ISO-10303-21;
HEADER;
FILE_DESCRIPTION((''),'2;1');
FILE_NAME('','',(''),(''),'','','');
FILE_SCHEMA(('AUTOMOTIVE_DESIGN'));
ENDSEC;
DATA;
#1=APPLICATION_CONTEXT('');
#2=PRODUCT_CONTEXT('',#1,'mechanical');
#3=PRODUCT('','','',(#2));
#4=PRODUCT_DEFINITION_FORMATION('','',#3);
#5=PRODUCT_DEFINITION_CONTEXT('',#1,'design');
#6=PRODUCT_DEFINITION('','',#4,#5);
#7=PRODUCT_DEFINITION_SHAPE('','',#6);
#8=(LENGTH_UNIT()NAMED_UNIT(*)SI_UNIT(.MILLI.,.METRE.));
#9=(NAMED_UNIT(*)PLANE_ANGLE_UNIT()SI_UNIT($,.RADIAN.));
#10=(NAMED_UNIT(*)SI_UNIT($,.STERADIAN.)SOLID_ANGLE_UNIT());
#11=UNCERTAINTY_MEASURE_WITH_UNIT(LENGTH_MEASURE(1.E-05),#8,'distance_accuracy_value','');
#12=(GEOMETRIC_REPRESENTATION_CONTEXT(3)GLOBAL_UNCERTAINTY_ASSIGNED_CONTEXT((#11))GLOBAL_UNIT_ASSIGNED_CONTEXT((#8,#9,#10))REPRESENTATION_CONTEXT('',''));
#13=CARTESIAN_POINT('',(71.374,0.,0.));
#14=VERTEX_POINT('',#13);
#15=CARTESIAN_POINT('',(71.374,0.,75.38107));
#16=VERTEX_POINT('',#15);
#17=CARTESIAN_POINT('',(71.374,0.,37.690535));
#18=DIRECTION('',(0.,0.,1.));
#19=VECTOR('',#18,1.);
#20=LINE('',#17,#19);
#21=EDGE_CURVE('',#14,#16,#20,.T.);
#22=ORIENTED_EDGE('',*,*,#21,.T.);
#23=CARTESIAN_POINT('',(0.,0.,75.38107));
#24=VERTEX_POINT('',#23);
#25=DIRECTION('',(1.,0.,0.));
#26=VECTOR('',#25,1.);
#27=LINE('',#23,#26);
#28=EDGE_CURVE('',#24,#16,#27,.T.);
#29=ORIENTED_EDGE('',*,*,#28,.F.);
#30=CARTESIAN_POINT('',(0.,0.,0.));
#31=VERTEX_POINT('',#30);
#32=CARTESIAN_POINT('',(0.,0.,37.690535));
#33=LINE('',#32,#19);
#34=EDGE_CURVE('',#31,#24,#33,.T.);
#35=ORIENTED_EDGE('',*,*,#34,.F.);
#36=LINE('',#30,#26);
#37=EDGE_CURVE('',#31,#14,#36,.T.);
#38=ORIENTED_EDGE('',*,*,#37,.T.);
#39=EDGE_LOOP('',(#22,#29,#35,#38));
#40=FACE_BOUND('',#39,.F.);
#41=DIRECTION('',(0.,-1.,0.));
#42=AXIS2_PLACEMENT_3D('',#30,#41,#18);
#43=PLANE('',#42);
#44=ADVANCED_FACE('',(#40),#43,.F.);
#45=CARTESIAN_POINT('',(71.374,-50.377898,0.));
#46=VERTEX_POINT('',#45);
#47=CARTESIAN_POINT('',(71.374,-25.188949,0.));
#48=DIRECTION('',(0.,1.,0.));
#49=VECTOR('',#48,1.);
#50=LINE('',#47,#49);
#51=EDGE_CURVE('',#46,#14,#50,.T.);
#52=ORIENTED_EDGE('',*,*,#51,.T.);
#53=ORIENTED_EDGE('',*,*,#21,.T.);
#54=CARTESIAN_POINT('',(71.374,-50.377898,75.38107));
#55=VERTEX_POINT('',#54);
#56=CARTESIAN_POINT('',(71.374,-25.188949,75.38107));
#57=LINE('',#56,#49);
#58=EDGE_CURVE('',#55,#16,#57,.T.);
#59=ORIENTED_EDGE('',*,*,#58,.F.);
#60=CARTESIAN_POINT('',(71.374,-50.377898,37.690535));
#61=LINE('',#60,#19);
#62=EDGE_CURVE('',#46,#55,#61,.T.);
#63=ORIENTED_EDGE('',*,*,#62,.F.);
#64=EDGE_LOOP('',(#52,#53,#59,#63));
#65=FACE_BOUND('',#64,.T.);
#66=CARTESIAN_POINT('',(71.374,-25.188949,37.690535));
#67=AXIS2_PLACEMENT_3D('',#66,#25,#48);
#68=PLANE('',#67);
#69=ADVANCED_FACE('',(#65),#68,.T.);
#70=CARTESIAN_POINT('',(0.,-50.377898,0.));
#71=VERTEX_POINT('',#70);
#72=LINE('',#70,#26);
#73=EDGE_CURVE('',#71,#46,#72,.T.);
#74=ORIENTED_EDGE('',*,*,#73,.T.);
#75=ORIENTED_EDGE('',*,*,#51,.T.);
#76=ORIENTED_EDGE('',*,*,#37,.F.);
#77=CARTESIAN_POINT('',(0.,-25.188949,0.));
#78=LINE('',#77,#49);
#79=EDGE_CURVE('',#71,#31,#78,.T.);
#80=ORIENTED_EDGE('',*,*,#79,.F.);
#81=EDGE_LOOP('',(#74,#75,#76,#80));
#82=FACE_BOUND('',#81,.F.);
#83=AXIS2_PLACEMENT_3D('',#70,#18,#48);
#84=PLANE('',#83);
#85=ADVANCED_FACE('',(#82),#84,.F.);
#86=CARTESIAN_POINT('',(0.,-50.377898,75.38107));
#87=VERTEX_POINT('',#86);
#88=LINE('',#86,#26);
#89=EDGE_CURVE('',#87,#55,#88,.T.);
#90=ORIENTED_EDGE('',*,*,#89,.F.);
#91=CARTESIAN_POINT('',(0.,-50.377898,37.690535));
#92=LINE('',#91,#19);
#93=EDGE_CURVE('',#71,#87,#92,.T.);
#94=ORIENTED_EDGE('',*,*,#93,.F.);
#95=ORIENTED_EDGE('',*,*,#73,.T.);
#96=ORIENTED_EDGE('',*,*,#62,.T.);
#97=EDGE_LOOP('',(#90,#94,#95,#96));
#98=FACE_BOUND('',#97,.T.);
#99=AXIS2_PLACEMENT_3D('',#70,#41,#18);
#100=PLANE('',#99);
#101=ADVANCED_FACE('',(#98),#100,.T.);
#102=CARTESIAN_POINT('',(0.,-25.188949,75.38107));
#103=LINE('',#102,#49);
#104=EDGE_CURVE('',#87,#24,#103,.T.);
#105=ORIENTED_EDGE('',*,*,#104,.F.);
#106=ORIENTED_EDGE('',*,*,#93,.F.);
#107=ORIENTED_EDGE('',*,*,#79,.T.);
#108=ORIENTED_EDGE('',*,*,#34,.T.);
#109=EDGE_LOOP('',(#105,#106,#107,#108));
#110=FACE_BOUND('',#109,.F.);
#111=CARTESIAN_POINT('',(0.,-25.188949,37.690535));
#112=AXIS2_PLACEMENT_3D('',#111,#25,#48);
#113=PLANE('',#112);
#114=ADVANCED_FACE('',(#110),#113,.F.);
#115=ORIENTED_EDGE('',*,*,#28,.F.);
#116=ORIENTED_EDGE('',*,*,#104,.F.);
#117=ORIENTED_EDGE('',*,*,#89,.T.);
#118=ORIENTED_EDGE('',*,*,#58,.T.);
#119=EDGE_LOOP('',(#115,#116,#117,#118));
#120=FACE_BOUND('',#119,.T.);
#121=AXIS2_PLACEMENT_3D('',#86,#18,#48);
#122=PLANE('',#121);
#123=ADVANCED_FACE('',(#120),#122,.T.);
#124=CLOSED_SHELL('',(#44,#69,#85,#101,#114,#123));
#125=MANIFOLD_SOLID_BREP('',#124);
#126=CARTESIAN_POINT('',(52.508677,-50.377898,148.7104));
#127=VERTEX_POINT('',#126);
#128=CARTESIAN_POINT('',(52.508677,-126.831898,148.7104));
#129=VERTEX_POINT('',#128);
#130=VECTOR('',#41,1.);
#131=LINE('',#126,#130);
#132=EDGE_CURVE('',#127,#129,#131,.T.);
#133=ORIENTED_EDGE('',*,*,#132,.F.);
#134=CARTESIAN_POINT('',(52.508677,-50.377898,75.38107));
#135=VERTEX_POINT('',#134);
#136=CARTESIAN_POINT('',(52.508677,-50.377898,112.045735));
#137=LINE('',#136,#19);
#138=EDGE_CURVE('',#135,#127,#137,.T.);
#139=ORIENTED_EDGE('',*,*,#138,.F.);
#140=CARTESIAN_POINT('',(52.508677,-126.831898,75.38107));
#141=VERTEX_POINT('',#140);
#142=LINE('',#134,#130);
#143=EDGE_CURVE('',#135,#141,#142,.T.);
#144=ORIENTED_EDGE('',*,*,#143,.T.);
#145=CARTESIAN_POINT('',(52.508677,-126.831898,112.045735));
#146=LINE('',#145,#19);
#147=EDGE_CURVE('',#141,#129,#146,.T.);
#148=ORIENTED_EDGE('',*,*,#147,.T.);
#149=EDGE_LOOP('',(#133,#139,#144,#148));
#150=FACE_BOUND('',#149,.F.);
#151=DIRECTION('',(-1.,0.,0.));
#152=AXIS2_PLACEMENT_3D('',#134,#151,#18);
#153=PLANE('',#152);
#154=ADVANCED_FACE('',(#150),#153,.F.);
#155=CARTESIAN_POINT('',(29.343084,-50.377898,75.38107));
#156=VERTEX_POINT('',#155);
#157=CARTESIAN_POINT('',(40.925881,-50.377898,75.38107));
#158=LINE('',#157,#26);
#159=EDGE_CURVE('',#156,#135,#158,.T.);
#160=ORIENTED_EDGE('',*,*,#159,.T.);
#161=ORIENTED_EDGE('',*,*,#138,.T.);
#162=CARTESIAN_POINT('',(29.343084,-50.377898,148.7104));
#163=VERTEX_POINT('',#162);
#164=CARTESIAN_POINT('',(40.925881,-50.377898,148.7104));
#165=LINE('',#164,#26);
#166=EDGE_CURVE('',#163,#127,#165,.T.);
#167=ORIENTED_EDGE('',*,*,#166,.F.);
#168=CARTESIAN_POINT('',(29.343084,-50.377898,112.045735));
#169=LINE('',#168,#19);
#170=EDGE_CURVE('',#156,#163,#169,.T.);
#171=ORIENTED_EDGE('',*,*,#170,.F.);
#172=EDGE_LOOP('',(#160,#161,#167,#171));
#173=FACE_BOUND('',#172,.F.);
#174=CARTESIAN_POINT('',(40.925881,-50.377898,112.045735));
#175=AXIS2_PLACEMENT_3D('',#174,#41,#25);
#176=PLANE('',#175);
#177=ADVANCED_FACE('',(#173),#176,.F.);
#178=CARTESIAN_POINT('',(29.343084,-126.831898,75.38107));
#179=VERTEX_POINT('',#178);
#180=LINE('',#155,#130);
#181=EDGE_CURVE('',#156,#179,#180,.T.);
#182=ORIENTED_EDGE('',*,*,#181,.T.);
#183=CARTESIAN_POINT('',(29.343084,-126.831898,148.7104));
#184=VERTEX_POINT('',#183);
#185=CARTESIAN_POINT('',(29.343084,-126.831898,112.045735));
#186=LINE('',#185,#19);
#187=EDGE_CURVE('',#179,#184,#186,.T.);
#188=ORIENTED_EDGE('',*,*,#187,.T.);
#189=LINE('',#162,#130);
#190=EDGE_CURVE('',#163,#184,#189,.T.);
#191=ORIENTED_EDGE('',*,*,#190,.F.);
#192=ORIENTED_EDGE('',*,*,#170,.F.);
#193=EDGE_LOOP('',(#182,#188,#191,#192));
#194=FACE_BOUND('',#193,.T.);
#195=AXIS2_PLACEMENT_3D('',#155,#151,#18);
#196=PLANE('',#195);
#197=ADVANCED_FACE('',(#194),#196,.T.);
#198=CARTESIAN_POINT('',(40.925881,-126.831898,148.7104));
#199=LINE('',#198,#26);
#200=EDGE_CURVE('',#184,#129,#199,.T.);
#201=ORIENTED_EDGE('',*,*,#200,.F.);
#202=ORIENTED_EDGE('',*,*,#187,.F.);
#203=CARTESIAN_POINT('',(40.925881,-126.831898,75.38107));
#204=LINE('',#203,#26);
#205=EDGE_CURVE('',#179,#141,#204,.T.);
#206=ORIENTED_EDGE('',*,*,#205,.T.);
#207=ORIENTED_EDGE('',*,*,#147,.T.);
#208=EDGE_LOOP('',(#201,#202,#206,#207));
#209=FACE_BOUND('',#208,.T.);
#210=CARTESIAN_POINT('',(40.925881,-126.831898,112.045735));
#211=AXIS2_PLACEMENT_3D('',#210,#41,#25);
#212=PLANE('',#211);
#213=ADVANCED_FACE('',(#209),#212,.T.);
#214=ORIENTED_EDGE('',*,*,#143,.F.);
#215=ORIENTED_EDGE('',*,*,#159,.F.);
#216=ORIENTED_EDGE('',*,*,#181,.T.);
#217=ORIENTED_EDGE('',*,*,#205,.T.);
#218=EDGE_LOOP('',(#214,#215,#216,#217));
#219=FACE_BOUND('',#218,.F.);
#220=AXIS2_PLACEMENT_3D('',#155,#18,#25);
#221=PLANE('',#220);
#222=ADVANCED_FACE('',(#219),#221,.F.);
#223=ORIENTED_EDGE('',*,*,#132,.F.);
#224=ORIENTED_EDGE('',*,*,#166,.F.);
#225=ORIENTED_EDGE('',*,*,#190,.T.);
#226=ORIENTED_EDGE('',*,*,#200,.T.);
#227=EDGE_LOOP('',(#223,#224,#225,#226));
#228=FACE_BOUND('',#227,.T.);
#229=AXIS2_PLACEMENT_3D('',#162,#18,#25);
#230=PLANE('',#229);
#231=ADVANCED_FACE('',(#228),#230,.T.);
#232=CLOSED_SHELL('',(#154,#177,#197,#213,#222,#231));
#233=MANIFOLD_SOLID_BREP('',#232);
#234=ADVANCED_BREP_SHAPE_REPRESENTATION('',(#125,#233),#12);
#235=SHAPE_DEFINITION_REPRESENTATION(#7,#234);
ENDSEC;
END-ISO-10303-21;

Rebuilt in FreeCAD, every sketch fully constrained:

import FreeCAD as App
import Part
import Sketcher
Q = App.Units.Quantity

doc = App.newDocument("Part")
body = doc.addObject("PartDesign::Body", "Body")

sketch1 = body.newObject("Sketcher::SketchObject", "Sketch")
sketch1.AttachmentSupport = (doc.getObject("YZ_Plane"), [""])
sketch1.MapMode = "FlatFace"
sketch1.addGeometry([
    Part.LineSegment(App.Vector(-50, 75, 0), App.Vector(-50, 0, 0)),
    Part.LineSegment(App.Vector(-50, 0, 0), App.Vector(0, 0, 0)),
    Part.LineSegment(App.Vector(0, 0, 0), App.Vector(0, 75, 0)),
    Part.LineSegment(App.Vector(0, 75, 0), App.Vector(-50, 75, 0)),
], False)
sketch1.addConstraint([
    Sketcher.Constraint("Coincident", 0, 2, 1, 1),
    Sketcher.Constraint("Coincident", 1, 2, 2, 1),
    Sketcher.Constraint("Coincident", 2, 2, 3, 1),
    Sketcher.Constraint("Coincident", 3, 2, 0, 1),
    Sketcher.Constraint("Vertical", 0),
    Sketcher.Constraint("Horizontal", 1),
    Sketcher.Constraint("Vertical", 2),
    Sketcher.Constraint("Horizontal", 3),
    Sketcher.Constraint("Coincident", 1, 2, -1, 1),
    Sketcher.Constraint("DistanceX", 1, 1, 1, 2, 50.377898),
    Sketcher.Constraint("DistanceY", 0, 2, 0, 1, 75.38107),
])
pad1 = body.newObject("PartDesign::Pad", "Pad")
pad1.Profile = sketch1
pad1.Length = Q("2.81 in")
body2 = doc.addObject("PartDesign::Body", "Body001")

sketch2 = body2.newObject("Sketcher::SketchObject", "Sketch001")
sketch2.AttachmentSupport = (doc.getObject("XZ_Plane001"), [""])
sketch2.MapMode = "FlatFace"
sketch2.AttachmentOffset = App.Placement(App.Vector(0, 0, 50.377898), App.Rotation())
sketch2.addGeometry([
    Part.LineSegment(App.Vector(29, 149, 0), App.Vector(29, 75, 0)),
    Part.LineSegment(App.Vector(29, 75, 0), App.Vector(53, 75, 0)),
    Part.LineSegment(App.Vector(53, 75, 0), App.Vector(53, 149, 0)),
    Part.LineSegment(App.Vector(53, 149, 0), App.Vector(29, 149, 0)),
], False)
sketch2.addConstraint([
    Sketcher.Constraint("Coincident", 0, 2, 1, 1),
    Sketcher.Constraint("Coincident", 1, 2, 2, 1),
    Sketcher.Constraint("Coincident", 2, 2, 3, 1),
    Sketcher.Constraint("Coincident", 3, 2, 0, 1),
    Sketcher.Constraint("Vertical", 0),
    Sketcher.Constraint("Horizontal", 1),
    Sketcher.Constraint("Vertical", 2),
    Sketcher.Constraint("Horizontal", 3),
    Sketcher.Constraint("DistanceY", 0, 2, 0, 1, 73.32933),
    Sketcher.Constraint("DistanceY", -1, 1, 2, 2, 148.7104),
    Sketcher.Constraint("DistanceX", 1, 1, 1, 2, 23.165593),
    Sketcher.Constraint("DistanceX", -1, 1, 0, 2, 29.343084),
])
pad2 = body2.newObject("PartDesign::Pad", "Pad001")
pad2.Profile = sketch2
pad2.Length = Q("3.01 in")

doc.recompute()
